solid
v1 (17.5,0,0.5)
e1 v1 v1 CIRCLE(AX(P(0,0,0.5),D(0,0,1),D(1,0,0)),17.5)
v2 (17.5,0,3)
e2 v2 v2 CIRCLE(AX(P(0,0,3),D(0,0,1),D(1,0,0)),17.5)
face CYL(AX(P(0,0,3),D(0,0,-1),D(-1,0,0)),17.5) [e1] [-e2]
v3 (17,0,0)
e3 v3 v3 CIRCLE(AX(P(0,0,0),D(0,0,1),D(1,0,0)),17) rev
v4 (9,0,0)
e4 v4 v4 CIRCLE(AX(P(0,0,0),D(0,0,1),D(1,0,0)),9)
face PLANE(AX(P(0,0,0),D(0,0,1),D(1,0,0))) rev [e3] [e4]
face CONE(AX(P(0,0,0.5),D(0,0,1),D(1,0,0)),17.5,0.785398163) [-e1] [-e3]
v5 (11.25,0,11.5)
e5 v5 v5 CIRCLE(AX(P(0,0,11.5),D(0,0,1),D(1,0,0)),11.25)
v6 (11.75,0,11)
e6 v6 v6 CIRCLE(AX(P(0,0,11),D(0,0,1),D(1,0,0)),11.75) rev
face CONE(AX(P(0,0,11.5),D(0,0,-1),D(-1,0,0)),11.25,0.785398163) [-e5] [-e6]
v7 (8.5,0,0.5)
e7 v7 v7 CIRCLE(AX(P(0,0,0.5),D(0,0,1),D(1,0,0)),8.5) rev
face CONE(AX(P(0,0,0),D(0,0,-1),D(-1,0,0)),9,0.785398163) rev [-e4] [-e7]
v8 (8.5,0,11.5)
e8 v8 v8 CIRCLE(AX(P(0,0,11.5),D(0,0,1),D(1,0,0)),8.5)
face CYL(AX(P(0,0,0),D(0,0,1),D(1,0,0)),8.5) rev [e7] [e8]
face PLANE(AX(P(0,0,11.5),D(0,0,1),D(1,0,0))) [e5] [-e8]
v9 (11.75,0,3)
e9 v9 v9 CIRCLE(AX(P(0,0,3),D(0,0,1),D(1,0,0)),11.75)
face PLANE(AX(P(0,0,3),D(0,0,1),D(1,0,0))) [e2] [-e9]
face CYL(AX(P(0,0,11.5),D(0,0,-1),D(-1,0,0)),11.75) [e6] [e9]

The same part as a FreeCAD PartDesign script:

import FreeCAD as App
import Part
import Sketcher
from FreeCAD import Vector
Q = App.Units.Quantity


def edges_at(feature, points):
    """Names of the edges that pass closest to the given points."""
    edges = feature.Shape.Edges
    near = lambda p: min(range(len(edges)), key=lambda i: edges[i].distToShape(Part.Vertex(*p))[0])
    return sorted({f"Edge{near(p) + 1}" for p in points})

doc = App.newDocument("Part")
body = doc.addObject("PartDesign::Body", "Body")

sketch1 = body.newObject("Sketcher::SketchObject", "Sketch")
sketch1.AttachmentSupport = (doc.getObject("XY_Plane"), [""])
sketch1.MapMode = "FlatFace"
sketch1.addGeometry(Part.Circle(Vector(0, 0, 0), Vector(0, 0, 1), 17.5), False)
sketch1.addConstraint(Sketcher.Constraint("Coincident", 0, 3, -1, 1))
sketch1.addConstraint(Sketcher.Constraint("Diameter", 0, Q("35 mm")))
pad1 = body.newObject("PartDesign::Pad", "Pad")
pad1.Profile = sketch1
pad1.Length = 3

sketch2 = body.newObject("Sketcher::SketchObject", "Sketch001")
sketch2.AttachmentSupport = (doc.getObject("XY_Plane"), [""])
sketch2.MapMode = "FlatFace"
sketch2.AttachmentOffset = App.Placement(Vector(0, 0, 3), App.Rotation())
sketch2.addGeometry(Part.Circle(Vector(0, 0, 0), Vector(0, 0, 1), 11.75), False)
sketch2.addConstraint(Sketcher.Constraint("Coincident", 0, 3, -1, 1))
sketch2.addConstraint(Sketcher.Constraint("Diameter", 0, Q("23.5 mm")))
pad2 = body.newObject("PartDesign::Pad", "Pad001")
pad2.Profile = sketch2
pad2.Length = 8.5

sketch3 = body.newObject("Sketcher::SketchObject", "Sketch002")
sketch3.AttachmentSupport = (doc.getObject("XY_Plane"), [""])
sketch3.MapMode = "FlatFace"
sketch3.AttachmentOffset = App.Placement(Vector(0, 0, 11.5), App.Rotation())
sketch3.addGeometry(Part.Circle(Vector(0, 0, 0), Vector(0, 0, 1), 8.5), False)
sketch3.addConstraint(Sketcher.Constraint("Coincident", 0, 3, -1, 1))
sketch3.addConstraint(Sketcher.Constraint("Diameter", 0, Q("17 mm")))
pocket1 = body.newObject("PartDesign::Pocket", "Pocket")
pocket1.Profile = sketch3
pocket1.Type = "ThroughAll"
doc.recompute()

chamfer = body.newObject("PartDesign::Chamfer", "Chamfer")
chamfer.Base = (pocket1, edges_at(pocket1, [(-8.5, 0, 0), (-17.5, 0, 0), (-11.75, 0, 11.5)]))
chamfer.Size = 0.5

doc.recompute()
